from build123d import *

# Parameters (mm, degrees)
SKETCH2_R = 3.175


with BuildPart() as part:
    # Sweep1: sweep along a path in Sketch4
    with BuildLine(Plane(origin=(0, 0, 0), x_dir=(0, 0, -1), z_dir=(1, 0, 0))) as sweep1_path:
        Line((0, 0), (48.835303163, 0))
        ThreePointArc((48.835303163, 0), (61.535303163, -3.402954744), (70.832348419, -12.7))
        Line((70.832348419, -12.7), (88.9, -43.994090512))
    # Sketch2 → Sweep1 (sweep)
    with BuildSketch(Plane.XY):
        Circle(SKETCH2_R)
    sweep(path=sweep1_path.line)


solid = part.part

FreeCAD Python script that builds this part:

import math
import FreeCAD as App
import Part
import Sketcher

V = App.Vector
Q = App.Units.Quantity

doc = App.newDocument("Part")
params = doc.addObject("Spreadsheet::Sheet", "Params")
for row, (alias, value) in enumerate([
    ("sketch1_diameter", "0.25 in"),
    ("sketch2_radius", "1 in"),
], start=1):
    params.set(f"A{row}", alias)
    params.set(f"B{row}", "=" + value)
    params.setAlias(f"B{row}", alias)

body = doc.addObject("PartDesign::Body", "Body")

sketch1 = body.newObject("Sketcher::SketchObject", "Sketch")
sketch1.AttachmentSupport = (doc.getObject("XY_Plane"), [""])
sketch1.MapMode = "FlatFace"
sketch1.addGeometry(Part.Circle(V(0, 0, 0), V(0, 0, 1), 3.2), False)
sketch1.addConstraint(Sketcher.Constraint("Coincident", 0, 3, -1, 1))
sketch1.addConstraint(Sketcher.Constraint("Diameter", 0, Q("0.25 in")))
sketch1.setExpression("Constraints[1]", "Params.sketch1_diameter")

sketch2 = body.newObject("Sketcher::SketchObject", "Sketch001")
sketch2.AttachmentSupport = (doc.getObject("YZ_Plane"), [""])
sketch2.MapMode = "FlatFace"
sketch2.addGeometry(Part.LineSegment(V(0, 0, 0), V(0, -49, 0)), False)
sketch2.addGeometry(Part.ArcOfCircle(Part.Circle(V(-25, -49, 0), V(0, 0, 1), 25), math.radians(-60), math.radians(0)), False)
sketch2.addGeometry(Part.LineSegment(V(-13, -71, 0), V(-44, -89, 0)), False)
sketch2.addConstraint(Sketcher.Constraint("Tangent", 0, 2, 1, 2))
sketch2.addConstraint(Sketcher.Constraint("Tangent", 1, 1, 2, 1))
sketch2.addConstraint(Sketcher.Constraint("Vertical", 0))
sketch2.addConstraint(Sketcher.Constraint("Coincident", 0, 1, -1, 1))
sketch2.addConstraint(Sketcher.Constraint("Radius", 1, Q("1 in")))
sketch2.addConstraint(Sketcher.Constraint("Angle", 2, Q("-150 deg")))
sketch2.addConstraint(Sketcher.Constraint("DistanceY", 2, 2, -1, 1, Q("3.5 in")))
sketch2.addConstraint(Sketcher.Constraint("DistanceY", 0, 2, 0, 1, Q("48.835303 mm")))
sketch2.setExpression("Constraints[4]", "Params.sketch2_radius")
doc.recompute()

additivepipe = body.newObject("PartDesign::AdditivePipe", "AdditivePipe")
additivepipe.Profile = sketch1
additivepipe.Spine = (sketch2, ["Edge1", "Edge2", "Edge3"])

doc.recompute()
